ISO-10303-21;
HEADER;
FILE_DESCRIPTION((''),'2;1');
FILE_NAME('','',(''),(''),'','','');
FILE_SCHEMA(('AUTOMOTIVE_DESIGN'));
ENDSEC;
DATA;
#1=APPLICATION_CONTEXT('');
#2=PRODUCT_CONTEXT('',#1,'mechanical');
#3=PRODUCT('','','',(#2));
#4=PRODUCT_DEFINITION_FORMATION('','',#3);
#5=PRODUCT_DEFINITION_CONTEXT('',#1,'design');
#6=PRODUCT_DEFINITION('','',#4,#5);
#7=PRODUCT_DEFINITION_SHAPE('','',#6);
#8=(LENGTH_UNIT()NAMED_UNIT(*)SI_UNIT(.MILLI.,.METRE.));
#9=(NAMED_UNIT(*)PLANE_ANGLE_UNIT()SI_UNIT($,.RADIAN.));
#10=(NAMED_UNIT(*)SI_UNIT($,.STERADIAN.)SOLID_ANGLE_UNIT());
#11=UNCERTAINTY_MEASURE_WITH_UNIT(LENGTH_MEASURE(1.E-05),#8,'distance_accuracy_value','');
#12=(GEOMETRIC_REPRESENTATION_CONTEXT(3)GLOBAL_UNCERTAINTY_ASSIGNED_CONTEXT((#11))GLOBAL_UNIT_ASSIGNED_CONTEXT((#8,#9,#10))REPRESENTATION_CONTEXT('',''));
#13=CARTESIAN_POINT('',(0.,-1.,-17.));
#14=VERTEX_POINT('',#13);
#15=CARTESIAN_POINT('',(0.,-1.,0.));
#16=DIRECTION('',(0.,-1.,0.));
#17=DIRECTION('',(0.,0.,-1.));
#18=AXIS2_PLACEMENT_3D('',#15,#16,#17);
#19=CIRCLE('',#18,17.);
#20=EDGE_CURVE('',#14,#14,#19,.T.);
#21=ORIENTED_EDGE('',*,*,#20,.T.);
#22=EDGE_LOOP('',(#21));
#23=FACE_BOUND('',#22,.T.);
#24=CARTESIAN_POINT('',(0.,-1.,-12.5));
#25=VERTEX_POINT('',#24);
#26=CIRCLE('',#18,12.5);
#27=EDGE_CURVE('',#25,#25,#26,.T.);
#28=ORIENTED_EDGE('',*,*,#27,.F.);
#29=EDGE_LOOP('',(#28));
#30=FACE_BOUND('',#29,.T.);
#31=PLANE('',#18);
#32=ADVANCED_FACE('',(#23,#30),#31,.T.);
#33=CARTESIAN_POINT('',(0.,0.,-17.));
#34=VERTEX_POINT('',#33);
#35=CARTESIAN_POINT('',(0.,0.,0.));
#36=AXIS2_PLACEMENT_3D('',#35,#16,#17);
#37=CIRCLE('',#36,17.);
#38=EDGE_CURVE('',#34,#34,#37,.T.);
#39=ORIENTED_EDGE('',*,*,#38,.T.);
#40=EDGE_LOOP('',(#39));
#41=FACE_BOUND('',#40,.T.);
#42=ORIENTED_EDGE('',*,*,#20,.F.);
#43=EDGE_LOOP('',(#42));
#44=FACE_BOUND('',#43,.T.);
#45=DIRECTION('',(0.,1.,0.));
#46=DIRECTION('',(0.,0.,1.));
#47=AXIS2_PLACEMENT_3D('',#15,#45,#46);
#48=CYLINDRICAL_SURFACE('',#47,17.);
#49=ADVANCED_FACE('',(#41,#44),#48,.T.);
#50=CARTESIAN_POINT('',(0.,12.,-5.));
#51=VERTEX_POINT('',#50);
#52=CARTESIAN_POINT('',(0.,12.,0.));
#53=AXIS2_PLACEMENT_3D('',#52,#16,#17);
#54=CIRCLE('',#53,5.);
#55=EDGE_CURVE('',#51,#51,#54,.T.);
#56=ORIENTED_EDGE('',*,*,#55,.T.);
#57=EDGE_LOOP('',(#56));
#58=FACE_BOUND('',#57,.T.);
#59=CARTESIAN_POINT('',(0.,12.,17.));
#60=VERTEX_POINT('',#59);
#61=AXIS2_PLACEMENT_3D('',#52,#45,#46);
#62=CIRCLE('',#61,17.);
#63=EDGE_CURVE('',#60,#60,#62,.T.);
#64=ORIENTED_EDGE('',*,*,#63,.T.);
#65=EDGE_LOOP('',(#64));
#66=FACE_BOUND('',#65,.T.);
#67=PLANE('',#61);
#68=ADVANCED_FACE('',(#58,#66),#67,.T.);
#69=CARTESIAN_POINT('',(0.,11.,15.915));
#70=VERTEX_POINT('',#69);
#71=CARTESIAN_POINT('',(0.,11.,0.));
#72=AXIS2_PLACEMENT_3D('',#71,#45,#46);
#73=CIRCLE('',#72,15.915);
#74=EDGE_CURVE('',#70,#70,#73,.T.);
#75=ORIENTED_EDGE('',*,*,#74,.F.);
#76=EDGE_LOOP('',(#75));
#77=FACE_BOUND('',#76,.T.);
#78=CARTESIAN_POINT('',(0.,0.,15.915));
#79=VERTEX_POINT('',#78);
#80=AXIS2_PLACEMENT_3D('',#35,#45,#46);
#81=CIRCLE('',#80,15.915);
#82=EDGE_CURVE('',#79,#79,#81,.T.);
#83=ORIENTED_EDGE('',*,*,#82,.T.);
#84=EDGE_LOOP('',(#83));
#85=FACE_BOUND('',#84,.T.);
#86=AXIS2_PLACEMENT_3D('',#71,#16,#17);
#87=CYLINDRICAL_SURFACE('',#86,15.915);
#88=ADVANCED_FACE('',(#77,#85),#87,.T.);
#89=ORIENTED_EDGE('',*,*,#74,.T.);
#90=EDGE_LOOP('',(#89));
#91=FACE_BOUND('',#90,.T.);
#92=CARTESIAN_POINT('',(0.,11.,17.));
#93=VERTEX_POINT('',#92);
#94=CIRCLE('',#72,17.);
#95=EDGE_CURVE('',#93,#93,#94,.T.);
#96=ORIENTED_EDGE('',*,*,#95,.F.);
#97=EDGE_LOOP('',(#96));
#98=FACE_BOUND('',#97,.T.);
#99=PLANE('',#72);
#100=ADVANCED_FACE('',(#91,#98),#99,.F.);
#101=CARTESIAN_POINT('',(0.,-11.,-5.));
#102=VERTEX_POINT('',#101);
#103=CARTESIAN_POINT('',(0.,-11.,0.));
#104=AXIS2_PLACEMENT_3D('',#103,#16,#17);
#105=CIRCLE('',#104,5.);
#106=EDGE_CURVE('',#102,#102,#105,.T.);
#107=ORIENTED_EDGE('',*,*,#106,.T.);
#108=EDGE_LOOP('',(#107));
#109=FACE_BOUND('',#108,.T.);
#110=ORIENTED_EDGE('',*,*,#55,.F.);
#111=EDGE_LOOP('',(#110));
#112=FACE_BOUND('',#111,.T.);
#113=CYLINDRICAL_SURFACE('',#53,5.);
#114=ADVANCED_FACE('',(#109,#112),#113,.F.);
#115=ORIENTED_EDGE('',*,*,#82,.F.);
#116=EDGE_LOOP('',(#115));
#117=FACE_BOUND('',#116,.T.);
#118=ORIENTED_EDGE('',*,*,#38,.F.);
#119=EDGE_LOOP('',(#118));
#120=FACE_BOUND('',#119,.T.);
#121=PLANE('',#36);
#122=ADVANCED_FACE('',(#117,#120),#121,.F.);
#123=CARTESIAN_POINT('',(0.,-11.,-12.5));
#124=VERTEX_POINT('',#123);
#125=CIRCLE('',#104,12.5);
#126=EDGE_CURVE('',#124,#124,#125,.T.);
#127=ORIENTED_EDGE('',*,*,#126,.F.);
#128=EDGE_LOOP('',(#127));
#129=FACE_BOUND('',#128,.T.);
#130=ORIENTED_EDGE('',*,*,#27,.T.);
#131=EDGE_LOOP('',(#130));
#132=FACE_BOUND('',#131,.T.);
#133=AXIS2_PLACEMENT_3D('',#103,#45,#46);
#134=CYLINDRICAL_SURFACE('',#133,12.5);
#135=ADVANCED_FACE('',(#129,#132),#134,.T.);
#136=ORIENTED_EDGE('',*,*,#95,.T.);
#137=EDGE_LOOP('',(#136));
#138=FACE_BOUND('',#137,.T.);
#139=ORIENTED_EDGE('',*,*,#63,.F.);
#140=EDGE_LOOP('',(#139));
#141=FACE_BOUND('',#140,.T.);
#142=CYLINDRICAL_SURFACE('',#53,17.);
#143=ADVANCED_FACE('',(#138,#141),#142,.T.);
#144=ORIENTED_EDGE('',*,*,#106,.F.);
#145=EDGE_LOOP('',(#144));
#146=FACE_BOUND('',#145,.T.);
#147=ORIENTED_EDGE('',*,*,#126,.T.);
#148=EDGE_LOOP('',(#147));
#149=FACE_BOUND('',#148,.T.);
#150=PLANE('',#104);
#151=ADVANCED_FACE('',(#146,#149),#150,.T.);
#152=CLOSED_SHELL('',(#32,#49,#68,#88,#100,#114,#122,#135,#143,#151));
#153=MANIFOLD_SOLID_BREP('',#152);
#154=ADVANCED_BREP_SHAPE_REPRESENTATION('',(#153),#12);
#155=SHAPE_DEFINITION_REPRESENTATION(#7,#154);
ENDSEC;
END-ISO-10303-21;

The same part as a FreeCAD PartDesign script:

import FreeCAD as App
import Part
import Sketcher
Q = App.Units.Quantity

doc = App.newDocument("Part")
body = doc.addObject("PartDesign::Body", "Body")

# Sketch on XZ plane
sketch1 = body.newObject("Sketcher::SketchObject", "Sketch")
sketch1.AttachmentSupport = (doc.getObject("XZ_Plane"), [""])
sketch1.MapMode = "FlatFace"
sketch1.addGeometry(Part.Circle(App.Vector(0, 0, 0), App.Vector(0, 0, 1), 16), False)
sketch1.addConstraint([
    Sketcher.Constraint("Coincident", 0, 3, -1, 1),
    Sketcher.Constraint("Diameter", 0, Q("31.83 mm")),
])
pad1 = body.newObject("PartDesign::Pad", "Pad")
pad1.Profile = sketch1
pad1.Length = 11
pad1.Reversed = True

# Sketch on XZ plane
sketch2 = body.newObject("Sketcher::SketchObject", "Sketch001")
sketch2.AttachmentSupport = (doc.getObject("XZ_Plane"), [""])
sketch2.MapMode = "FlatFace"
sketch2.AttachmentOffset = App.Placement(App.Vector(0, 0, -11), App.Rotation())
sketch2.addGeometry(Part.Circle(App.Vector(0, 0, 0), App.Vector(0, 0, 1), 17), False)
sketch2.addConstraint([
    Sketcher.Constraint("Coincident", 0, 3, -1, 1),
    Sketcher.Constraint("Diameter", 0, Q("34 mm")),
])
pad2 = body.newObject("PartDesign::Pad", "Pad001")
pad2.Profile = sketch2
pad2.Length = 1
pad2.Reversed = True

# Sketch on XZ plane
sketch3 = body.newObject("Sketcher::SketchObject", "Sketch002")
sketch3.AttachmentSupport = (doc.getObject("XZ_Plane"), [""])
sketch3.MapMode = "FlatFace"
sketch3.AttachmentOffset = App.Placement(App.Vector(0, 0, 1), App.Rotation())
sketch3.addGeometry(Part.Circle(App.Vector(0, 0, 0), App.Vector(0, 0, 1), 17), False)
sketch3.addConstraint([
    Sketcher.Constraint("Coincident", 0, 3, -1, 1),
    Sketcher.Constraint("Diameter", 0, Q("34 mm")),
])
pad3 = body.newObject("PartDesign::Pad", "Pad002")
pad3.Profile = sketch3
pad3.Length = 1
pad3.Reversed = True

# Sketch on XZ plane
sketch4 = body.newObject("Sketcher::SketchObject", "Sketch003")
sketch4.AttachmentSupport = (doc.getObject("XZ_Plane"), [""])
sketch4.MapMode = "FlatFace"
sketch4.AttachmentOffset = App.Placement(App.Vector(0, 0, 1), App.Rotation())
sketch4.addGeometry(Part.Circle(App.Vector(0, 0, 0), App.Vector(0, 0, 1), 5), False)
sketch4.addConstraint([
    Sketcher.Constraint("Coincident", 0, 3, -1, 1),
    Sketcher.Constraint("Diameter", 0, Q("10 mm")),
])
pocket1 = body.newObject("PartDesign::Pocket", "Pocket")
pocket1.Profile = sketch4
pocket1.Type = "ThroughAll"

# Sketch on XZ plane
sketch5 = body.newObject("Sketcher::SketchObject", "Sketch004")
sketch5.AttachmentSupport = (doc.getObject("XZ_Plane"), [""])
sketch5.MapMode = "FlatFace"
sketch5.AttachmentOffset = App.Placement(App.Vector(0, 0, 11), App.Rotation())
sketch5.addGeometry([
    Part.Circle(App.Vector(0, 0, 0), App.Vector(0, 0, 1), 12),
    Part.Circle(App.Vector(0, 0, 0), App.Vector(0, 0, 1), 5),
], False)
sketch5.addConstraint([
    Sketcher.Constraint("Coincident", 0, 3, -1, 1),
    Sketcher.Constraint("Coincident", 1, 3, -1, 1),
    Sketcher.Constraint("Diameter", 0, Q("25 mm")),
    Sketcher.Constraint("Diameter", 1, Q("10 mm")),
])
pad4 = body.newObject("PartDesign::Pad", "Pad003")
pad4.Profile = sketch5
pad4.Length = 10
pad4.Reversed = True

doc.recompute()
